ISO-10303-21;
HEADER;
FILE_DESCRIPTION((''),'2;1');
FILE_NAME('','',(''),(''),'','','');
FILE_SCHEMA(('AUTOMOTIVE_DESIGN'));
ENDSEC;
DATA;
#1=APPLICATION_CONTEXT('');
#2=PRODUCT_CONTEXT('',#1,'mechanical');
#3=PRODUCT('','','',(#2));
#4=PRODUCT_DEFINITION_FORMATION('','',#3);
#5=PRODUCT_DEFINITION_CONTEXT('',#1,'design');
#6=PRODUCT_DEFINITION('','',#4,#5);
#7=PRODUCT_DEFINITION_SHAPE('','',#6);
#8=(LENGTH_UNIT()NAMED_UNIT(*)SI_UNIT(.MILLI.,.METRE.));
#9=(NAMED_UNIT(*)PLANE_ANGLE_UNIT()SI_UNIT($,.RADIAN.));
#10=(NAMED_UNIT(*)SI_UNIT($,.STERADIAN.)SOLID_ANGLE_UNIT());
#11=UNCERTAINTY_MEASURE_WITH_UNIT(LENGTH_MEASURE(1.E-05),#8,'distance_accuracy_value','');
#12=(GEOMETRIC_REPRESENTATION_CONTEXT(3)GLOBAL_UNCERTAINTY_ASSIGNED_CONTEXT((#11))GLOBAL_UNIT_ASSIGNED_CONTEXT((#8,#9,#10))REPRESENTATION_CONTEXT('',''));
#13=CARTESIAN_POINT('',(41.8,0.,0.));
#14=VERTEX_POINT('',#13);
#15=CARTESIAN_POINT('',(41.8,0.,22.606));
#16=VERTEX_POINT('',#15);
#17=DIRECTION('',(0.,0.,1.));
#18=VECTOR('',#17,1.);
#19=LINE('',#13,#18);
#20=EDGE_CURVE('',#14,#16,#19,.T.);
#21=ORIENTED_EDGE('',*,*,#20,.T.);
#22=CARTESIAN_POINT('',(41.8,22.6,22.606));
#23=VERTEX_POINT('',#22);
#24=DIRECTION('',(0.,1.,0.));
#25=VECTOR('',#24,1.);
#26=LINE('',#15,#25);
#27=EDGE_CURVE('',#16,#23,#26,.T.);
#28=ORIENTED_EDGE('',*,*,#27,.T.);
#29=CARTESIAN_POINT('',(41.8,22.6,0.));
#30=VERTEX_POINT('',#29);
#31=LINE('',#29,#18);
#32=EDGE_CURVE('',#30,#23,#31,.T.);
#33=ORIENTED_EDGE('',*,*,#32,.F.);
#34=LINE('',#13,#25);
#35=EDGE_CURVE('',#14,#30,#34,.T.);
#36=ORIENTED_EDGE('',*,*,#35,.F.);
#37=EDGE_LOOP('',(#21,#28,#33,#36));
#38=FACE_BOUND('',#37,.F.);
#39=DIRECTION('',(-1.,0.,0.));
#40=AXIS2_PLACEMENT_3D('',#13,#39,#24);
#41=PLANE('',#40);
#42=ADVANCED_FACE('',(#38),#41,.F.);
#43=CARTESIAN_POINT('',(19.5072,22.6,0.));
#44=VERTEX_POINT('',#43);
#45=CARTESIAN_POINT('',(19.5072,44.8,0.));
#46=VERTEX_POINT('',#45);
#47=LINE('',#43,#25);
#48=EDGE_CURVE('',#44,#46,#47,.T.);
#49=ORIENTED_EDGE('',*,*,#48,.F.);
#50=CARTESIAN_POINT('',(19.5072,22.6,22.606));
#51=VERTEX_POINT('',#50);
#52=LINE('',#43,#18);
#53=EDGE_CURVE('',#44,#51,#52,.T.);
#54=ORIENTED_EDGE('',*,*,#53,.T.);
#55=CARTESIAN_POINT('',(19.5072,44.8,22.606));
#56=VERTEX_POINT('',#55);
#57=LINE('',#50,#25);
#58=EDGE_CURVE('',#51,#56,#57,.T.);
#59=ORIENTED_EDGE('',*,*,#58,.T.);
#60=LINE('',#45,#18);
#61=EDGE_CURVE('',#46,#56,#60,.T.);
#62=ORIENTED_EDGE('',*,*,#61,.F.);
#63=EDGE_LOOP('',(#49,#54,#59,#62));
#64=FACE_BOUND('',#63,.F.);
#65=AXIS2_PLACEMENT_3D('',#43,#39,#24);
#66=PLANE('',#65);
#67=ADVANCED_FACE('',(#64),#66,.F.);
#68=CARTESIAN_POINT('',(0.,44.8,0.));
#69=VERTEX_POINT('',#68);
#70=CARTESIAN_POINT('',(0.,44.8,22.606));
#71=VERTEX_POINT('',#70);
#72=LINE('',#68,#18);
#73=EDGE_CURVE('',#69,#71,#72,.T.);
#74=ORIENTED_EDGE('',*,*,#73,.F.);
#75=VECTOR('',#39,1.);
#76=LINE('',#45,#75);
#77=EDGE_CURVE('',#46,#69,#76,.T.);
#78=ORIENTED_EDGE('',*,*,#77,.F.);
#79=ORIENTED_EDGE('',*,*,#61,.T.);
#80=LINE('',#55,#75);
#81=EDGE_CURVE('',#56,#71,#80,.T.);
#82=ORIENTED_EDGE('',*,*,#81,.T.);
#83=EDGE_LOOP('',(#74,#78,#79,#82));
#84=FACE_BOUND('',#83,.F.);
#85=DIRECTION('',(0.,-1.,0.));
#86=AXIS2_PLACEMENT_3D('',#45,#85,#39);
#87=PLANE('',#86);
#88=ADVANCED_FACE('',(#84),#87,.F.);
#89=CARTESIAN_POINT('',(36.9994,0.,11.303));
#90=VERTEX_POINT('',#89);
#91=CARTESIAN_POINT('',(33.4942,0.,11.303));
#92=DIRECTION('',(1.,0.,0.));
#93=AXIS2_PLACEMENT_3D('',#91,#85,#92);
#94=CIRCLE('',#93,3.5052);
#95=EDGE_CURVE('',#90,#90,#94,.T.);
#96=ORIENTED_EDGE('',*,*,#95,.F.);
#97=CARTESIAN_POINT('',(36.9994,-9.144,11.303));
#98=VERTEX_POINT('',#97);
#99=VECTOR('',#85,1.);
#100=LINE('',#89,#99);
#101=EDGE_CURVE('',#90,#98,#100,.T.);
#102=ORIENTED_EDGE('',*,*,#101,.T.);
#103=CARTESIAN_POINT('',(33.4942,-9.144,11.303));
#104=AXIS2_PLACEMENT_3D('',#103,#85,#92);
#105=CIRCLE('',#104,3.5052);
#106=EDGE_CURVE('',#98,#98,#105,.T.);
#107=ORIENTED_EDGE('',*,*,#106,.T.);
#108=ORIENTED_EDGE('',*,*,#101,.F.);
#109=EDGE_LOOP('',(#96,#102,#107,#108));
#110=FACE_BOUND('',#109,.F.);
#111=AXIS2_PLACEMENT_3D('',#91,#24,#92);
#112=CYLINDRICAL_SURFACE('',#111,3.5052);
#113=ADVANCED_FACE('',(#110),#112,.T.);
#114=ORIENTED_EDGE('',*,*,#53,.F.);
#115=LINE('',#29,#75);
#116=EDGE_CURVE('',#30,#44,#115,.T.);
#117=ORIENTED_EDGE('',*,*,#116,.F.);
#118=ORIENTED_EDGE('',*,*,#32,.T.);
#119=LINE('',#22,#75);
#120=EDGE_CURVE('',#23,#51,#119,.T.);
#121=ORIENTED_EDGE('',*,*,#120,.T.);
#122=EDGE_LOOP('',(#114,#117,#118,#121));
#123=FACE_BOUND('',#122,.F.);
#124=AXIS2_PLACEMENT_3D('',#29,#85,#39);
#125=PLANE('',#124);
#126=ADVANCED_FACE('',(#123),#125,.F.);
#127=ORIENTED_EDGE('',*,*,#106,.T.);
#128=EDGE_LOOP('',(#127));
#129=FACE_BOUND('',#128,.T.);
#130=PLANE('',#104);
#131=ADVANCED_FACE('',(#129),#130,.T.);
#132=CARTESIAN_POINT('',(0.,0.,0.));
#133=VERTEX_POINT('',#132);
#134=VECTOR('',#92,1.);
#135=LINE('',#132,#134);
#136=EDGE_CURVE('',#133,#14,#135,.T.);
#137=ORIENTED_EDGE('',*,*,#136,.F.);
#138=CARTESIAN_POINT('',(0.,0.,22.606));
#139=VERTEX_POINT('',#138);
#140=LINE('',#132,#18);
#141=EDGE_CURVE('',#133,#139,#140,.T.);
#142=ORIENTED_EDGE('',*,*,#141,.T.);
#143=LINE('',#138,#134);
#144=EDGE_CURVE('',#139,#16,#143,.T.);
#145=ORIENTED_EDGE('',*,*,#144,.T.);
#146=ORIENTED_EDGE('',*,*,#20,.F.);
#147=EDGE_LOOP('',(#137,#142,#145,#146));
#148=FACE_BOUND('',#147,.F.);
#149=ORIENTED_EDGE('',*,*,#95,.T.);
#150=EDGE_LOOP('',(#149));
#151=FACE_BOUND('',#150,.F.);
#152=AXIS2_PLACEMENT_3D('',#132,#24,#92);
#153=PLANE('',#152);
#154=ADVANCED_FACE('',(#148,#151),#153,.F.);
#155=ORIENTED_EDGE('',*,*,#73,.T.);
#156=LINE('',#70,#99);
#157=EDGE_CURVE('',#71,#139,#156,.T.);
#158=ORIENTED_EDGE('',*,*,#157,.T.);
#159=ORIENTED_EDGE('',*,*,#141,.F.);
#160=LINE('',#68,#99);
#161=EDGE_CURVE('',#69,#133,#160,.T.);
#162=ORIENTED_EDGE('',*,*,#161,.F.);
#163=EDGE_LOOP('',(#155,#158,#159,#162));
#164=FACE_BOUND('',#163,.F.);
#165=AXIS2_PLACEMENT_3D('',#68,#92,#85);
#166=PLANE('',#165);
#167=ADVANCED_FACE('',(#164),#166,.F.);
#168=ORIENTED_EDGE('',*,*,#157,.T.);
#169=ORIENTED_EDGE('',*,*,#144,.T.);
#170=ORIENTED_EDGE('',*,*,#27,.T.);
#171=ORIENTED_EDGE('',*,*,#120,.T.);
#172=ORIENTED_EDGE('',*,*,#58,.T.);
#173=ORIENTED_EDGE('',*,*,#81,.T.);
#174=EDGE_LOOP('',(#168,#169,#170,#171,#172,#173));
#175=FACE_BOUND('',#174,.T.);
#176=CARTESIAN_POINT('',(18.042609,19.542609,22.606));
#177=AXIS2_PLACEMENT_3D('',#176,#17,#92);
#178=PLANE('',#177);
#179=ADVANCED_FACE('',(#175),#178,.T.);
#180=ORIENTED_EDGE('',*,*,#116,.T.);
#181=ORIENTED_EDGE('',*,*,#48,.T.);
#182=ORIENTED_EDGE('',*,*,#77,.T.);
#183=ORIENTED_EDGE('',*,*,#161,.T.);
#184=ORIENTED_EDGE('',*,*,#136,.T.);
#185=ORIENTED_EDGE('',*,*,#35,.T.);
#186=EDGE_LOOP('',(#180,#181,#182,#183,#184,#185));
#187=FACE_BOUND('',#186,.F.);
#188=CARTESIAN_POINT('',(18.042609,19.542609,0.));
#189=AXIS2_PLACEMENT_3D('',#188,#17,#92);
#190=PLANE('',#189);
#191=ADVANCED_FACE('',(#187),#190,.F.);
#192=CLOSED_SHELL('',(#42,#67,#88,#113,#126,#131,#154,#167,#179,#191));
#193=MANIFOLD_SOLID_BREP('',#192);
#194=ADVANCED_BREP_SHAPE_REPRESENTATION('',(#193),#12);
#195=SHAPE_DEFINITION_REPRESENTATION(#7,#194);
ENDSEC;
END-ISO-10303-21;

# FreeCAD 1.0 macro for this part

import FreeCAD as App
import Part
import Sketcher

doc = App.newDocument("Part")
body = doc.addObject("PartDesign::Body", "Body")

# Sketch on XY plane
sketch1 = body.newObject("Sketcher::SketchObject", "Sketch")
sketch1.AttachmentSupport = (doc.getObject("XY_Plane"), [""])
sketch1.MapMode = "FlatFace"
sketch1.addGeometry(Part.LineSegment(App.Vector(0, 45, 0), App.Vector(0, 0, 0)), False)
sketch1.addGeometry(Part.LineSegment(App.Vector(0, 0, 0), App.Vector(42, 0, 0)), False)
sketch1.addGeometry(Part.LineSegment(App.Vector(42, 0, 0), App.Vector(42, 23, 0)), False)
sketch1.addGeometry(Part.LineSegment(App.Vector(42, 23, 0), App.Vector(20, 23, 0)), False)
sketch1.addGeometry(Part.LineSegment(App.Vector(20, 23, 0), App.Vector(20, 45, 0)), False)
sketch1.addGeometry(Part.LineSegment(App.Vector(20, 45, 0), App.Vector(0, 45, 0)), False)
sketch1.addConstraint(Sketcher.Constraint("Coincident", 0, 2, 1, 1))
sketch1.addConstraint(Sketcher.Constraint("Coincident", 1, 2, 2, 1))
sketch1.addConstraint(Sketcher.Constraint("Coincident", 2, 2, 3, 1))
sketch1.addConstraint(Sketcher.Constraint("Coincident", 3, 2, 4, 1))
sketch1.addConstraint(Sketcher.Constraint("Coincident", 4, 2, 5, 1))
sketch1.addConstraint(Sketcher.Constraint("Coincident", 5, 2, 0, 1))
sketch1.addConstraint(Sketcher.Constraint("Vertical", 0))
sketch1.addConstraint(Sketcher.Constraint("Horizontal", 1))
sketch1.addConstraint(Sketcher.Constraint("Vertical", 2))
sketch1.addConstraint(Sketcher.Constraint("Horizontal", 3))
sketch1.addConstraint(Sketcher.Constraint("Vertical", 4))
sketch1.addConstraint(Sketcher.Constraint("Horizontal", 5))
sketch1.addConstraint(Sketcher.Constraint("Coincident", 0, 2, -1, 1))
sketch1.addConstraint(Sketcher.Constraint("DistanceX", 1, 1, 1, 2, 41.8))
sketch1.addConstraint(Sketcher.Constraint("DistanceY", 0, 2, 0, 1, 44.8))
sketch1.addConstraint(Sketcher.Constraint("DistanceY", 2, 1, 2, 2, 22.6))
sketch1.addConstraint(Sketcher.Constraint("DistanceX", 3, 2, 3, 1, 22.2928))
pad1 = body.newObject("PartDesign::Pad", "Pad")
pad1.Profile = sketch1
pad1.Length = 22.606

# Sketch on XZ plane
sketch2 = body.newObject("Sketcher::SketchObject", "Sketch001")
sketch2.AttachmentSupport = (doc.getObject("XZ_Plane"), [""])
sketch2.MapMode = "FlatFace"
sketch2.addGeometry(Part.Circle(App.Vector(33.5, 11.3, 0), App.Vector(0, 0, 1), 3.5), False)
sketch2.addConstraint(Sketcher.Constraint("Diameter", 0, 7.0104))
sketch2.addConstraint(Sketcher.Constraint("DistanceY", -1, 1, 0, 3, 11.303))
sketch2.addConstraint(Sketcher.Constraint("DistanceX", -1, 1, 0, 3, 33.4942))
pad2 = body.newObject("PartDesign::Pad", "Pad001")
pad2.Profile = sketch2
pad2.Length = 9.144

doc.recompute()
